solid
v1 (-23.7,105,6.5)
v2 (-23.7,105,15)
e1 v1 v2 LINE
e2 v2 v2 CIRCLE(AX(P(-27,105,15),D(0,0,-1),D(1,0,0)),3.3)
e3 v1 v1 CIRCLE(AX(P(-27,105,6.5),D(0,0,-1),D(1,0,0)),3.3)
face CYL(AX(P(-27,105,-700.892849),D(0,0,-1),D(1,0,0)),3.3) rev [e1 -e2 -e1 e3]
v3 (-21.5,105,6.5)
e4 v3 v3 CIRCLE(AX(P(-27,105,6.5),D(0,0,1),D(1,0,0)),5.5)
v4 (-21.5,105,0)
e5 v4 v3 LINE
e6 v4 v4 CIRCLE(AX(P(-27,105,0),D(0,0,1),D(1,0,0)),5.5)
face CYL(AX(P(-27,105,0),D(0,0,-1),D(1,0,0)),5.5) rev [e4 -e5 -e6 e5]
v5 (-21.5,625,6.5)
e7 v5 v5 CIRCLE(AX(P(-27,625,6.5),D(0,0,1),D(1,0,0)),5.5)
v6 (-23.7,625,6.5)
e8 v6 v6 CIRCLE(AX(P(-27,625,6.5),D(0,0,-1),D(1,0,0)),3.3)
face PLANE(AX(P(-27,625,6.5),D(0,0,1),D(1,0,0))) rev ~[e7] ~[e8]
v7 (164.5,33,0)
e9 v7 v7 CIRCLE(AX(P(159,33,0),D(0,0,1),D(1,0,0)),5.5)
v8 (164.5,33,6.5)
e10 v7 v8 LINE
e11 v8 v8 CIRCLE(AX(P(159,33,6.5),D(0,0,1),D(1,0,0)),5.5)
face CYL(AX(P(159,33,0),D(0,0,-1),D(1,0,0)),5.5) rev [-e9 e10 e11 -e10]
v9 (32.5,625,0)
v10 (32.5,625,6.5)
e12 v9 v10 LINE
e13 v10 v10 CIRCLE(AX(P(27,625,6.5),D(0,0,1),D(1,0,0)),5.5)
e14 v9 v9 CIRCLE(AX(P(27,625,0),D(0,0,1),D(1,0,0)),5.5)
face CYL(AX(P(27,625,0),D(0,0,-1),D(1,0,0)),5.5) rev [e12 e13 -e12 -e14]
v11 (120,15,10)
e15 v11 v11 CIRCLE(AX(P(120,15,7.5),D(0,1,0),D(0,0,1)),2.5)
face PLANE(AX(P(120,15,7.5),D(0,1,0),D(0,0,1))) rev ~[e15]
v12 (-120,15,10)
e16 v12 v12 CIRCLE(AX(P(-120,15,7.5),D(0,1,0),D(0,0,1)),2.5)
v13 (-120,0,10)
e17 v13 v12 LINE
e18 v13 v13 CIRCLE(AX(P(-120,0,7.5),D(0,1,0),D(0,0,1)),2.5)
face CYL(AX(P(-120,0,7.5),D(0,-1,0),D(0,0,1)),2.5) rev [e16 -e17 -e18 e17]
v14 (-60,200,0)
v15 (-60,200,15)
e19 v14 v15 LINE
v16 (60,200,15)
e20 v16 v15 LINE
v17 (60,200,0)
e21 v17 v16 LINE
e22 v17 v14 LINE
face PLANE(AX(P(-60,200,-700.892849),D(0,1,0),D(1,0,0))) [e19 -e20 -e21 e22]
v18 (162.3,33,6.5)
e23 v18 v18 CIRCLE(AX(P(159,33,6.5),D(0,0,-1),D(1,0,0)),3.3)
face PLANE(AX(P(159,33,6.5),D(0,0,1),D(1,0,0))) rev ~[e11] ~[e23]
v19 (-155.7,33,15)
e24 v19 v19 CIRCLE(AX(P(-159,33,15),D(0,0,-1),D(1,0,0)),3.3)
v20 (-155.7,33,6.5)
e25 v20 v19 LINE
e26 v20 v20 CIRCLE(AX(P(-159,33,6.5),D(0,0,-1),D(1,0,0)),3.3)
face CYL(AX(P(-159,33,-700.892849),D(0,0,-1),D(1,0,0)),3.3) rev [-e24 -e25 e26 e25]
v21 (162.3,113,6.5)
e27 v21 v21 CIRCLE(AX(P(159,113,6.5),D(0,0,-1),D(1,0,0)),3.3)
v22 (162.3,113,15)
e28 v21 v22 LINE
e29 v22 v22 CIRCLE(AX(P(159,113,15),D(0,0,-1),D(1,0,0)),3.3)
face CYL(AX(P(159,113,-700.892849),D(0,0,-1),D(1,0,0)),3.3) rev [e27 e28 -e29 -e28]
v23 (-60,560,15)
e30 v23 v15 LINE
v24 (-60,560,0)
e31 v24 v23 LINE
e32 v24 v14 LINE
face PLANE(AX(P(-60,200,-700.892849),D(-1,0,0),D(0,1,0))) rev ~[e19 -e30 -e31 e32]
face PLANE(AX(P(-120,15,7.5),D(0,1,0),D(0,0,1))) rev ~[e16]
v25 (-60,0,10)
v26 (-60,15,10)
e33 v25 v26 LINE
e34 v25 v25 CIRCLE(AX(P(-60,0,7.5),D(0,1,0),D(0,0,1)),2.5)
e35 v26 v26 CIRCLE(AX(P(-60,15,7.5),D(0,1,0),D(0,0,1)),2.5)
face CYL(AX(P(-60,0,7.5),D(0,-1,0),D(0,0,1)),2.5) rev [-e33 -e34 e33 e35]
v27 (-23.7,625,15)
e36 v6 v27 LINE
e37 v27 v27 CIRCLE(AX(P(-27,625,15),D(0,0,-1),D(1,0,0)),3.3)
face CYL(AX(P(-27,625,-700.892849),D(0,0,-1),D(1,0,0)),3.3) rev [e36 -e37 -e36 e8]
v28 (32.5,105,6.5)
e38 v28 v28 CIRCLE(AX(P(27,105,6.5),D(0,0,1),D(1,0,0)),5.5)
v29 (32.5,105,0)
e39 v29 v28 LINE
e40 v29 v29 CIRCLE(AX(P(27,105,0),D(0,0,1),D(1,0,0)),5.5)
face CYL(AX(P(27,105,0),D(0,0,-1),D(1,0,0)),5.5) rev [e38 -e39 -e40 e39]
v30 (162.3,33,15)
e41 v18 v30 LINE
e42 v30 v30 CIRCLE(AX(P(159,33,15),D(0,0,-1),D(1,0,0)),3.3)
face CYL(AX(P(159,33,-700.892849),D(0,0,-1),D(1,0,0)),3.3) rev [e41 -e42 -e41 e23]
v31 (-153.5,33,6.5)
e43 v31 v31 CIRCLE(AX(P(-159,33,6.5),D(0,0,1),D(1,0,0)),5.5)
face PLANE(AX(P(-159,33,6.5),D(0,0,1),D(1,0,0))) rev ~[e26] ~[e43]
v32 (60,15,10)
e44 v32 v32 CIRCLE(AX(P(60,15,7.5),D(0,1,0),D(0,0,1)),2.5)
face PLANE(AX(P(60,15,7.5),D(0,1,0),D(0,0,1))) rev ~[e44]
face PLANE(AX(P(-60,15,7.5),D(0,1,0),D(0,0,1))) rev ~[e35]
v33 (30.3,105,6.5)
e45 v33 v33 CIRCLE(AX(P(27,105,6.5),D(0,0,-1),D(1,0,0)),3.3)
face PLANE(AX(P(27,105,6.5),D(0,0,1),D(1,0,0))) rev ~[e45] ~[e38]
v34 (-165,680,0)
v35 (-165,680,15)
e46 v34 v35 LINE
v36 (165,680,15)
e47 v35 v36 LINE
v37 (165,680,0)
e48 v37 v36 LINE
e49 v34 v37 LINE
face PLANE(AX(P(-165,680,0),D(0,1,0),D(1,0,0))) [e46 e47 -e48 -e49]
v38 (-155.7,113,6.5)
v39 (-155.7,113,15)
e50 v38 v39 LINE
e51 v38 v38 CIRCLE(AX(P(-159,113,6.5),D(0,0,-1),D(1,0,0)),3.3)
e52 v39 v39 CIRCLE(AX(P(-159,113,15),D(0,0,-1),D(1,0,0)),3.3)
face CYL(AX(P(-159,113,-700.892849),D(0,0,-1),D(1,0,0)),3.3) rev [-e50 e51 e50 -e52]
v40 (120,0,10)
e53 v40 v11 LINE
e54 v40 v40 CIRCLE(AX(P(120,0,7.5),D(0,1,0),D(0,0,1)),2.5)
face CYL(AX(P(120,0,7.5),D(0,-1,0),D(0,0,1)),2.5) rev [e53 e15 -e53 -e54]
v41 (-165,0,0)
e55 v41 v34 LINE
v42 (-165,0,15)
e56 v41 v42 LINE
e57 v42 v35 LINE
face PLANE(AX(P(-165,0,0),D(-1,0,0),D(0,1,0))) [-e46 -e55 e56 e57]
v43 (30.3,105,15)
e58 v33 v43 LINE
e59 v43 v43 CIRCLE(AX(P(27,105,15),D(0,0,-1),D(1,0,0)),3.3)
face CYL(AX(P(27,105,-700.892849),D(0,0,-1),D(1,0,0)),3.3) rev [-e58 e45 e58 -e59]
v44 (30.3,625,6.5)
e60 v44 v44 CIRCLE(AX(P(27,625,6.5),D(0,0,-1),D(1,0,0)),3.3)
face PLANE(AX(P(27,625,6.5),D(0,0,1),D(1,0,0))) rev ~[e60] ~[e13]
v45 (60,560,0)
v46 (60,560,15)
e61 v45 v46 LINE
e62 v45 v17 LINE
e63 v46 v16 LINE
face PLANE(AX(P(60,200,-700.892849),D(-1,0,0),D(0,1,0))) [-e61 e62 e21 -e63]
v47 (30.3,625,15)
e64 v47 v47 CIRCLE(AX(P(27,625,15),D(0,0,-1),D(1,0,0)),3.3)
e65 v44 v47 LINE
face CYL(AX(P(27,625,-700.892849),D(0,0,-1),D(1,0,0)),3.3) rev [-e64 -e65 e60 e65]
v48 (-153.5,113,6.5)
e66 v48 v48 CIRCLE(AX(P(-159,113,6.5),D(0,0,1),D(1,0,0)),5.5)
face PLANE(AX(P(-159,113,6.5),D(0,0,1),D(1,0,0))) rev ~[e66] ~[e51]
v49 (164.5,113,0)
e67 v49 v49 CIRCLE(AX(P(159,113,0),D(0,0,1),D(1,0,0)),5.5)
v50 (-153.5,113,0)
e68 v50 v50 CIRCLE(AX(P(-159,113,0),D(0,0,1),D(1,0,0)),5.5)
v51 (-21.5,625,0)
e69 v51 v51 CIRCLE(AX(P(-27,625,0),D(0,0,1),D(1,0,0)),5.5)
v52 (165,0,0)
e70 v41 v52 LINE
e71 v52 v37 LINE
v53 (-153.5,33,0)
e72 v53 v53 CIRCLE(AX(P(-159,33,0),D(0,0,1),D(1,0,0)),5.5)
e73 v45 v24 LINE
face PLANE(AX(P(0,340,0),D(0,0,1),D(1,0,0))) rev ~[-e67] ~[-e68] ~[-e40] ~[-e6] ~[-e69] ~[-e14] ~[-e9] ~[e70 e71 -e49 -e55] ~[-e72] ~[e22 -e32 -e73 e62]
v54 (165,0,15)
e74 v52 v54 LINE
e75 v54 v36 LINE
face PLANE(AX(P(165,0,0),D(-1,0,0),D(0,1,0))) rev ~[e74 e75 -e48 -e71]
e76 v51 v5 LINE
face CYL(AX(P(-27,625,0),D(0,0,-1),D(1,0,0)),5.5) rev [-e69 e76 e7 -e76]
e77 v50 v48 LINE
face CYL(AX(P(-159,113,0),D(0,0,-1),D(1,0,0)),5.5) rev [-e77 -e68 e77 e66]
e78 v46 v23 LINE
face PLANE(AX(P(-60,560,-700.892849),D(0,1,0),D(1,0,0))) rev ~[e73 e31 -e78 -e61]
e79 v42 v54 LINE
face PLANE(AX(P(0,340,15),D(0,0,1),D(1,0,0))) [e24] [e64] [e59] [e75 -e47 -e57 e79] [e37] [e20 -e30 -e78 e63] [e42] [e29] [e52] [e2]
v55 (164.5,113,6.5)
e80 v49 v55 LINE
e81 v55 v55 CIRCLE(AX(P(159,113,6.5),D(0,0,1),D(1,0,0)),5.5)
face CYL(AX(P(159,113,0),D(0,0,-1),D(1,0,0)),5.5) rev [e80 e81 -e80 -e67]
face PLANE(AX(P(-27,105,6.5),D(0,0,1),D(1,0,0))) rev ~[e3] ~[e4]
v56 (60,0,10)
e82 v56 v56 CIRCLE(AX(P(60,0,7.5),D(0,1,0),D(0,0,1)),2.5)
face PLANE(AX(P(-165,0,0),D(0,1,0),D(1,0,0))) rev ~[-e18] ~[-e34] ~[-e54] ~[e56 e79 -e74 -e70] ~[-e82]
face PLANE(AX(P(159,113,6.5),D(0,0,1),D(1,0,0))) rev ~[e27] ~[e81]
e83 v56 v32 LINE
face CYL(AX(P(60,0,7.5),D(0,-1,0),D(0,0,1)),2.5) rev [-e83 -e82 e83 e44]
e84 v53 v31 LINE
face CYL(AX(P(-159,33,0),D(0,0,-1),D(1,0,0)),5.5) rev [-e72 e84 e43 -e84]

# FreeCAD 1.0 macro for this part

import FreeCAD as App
import Part
import Sketcher
from FreeCAD import Vector


def add_polygon(sketch, points):
    """Adds a closed chain of lines whose ends are joined by coincident constraints."""
    first, n = sketch.GeometryCount, len(points)
    for a, b in zip(points, points[1:] + points[:1]):
        sketch.addGeometry(Part.LineSegment(App.Vector(*a, 0), App.Vector(*b, 0)), False)
    for i in range(n):
        sketch.addConstraint(Sketcher.Constraint("Coincident", first + i, 2, first + (i + 1) % n, 1))

doc = App.newDocument("Part")
params = doc.addObject("Spreadsheet::Sheet", "Params")
for row, (alias, value) in enumerate([
    ("sketch1_width", "330 mm"),
    ("sketch1_height", "680 mm"),
    ("pad1_length", "15 mm"),
    ("sketch2_diameter", "6.6 mm"),
    ("sketch3_diameter", "11 mm"),
    ("pocket2_length", "6.5 mm"),
    ("sketch4_diameter", "6.6 mm"),
    ("sketch5_diameter", "11 mm"),
    ("pocket4_length", "6.5 mm"),
    ("sketch6_diameter", "5 mm"),
    ("pocket5_length", "15 mm"),
    ("sketch7_width", "120 mm"),
    ("sketch7_height", "360 mm"),
], start=1):
    params.set(f"A{row}", alias)
    params.set(f"B{row}", "=" + value)
    params.setAlias(f"B{row}", alias)

body = doc.addObject("PartDesign::Body", "Body")

# Sketch on XY plane
sketch1 = body.newObject("Sketcher::SketchObject", "Sketch")
sketch1.AttachmentSupport = (doc.getObject("XY_Plane"), [""])
sketch1.MapMode = "FlatFace"
add_polygon(sketch1, [(-165, 680), (-165, 0), (165, 0), (165, 680)])  # lines 0-3
sketch1.addConstraint([
    Sketcher.Constraint("Vertical", 0),
    Sketcher.Constraint("Horizontal", 1),
    Sketcher.Constraint("Vertical", 2),
    Sketcher.Constraint("Horizontal", 3),
    Sketcher.Constraint("Symmetric", 0, 2, 1, 2, -1, 1),
    Sketcher.Constraint("DistanceX", 1, 1, 1, 2, 330.0),
    Sketcher.Constraint("DistanceY", 0, 2, 0, 1, 680.0),
])
sketch1.setExpression("Constraints[9]", "Params.sketch1_width")
sketch1.setExpression("Constraints[10]", "Params.sketch1_height")
pad1 = body.newObject("PartDesign::Pad", "Pad")
pad1.Profile = sketch1
pad1.setExpression("Length", "Params.pad1_length")

# Sketch on XY plane
sketch2 = body.newObject("Sketcher::SketchObject", "Sketch001")
sketch2.AttachmentSupport = (doc.getObject("XY_Plane"), [""])
sketch2.MapMode = "FlatFace"
sketch2.addGeometry([
    Part.Circle(Vector(-27, 105, 0), Vector(0, 0, 1), 3.3),
    Part.Circle(Vector(-27, 625, 0), Vector(0, 0, 1), 3.3),
    Part.Circle(Vector(27, 105, 0), Vector(0, 0, 1), 3.3),
    Part.Circle(Vector(27, 625, 0), Vector(0, 0, 1), 3.3),
], False)
sketch2.addConstraint([
    Sketcher.Constraint("Equal", 0, 1),
    Sketcher.Constraint("Equal", 1, 2),
    Sketcher.Constraint("Equal", 2, 3),
    Sketcher.Constraint("Symmetric", 0, 3, 2, 3, -2),
    Sketcher.Constraint("Symmetric", 1, 3, 3, 3, -2),
    Sketcher.Constraint("Vertical", 0, 3, 1, 3),
    Sketcher.Constraint("Diameter", 0, 6.6),
    Sketcher.Constraint("DistanceX", 0, 3, -1, 1, 27.0),
    Sketcher.Constraint("DistanceY", -1, 1, 0, 3, 105.0),
    Sketcher.Constraint("DistanceY", -1, 1, 1, 3, 625.0),
])
sketch2.setExpression("Constraints[6]", "Params.sketch2_diameter")
pocket1 = body.newObject("PartDesign::Pocket", "Pocket")
pocket1.Profile = sketch2
pocket1.Type = "ThroughAll"
pocket1.Midplane = True

# Sketch on XY plane
sketch3 = body.newObject("Sketcher::SketchObject", "Sketch002")
sketch3.AttachmentSupport = (doc.getObject("XY_Plane"), [""])
sketch3.MapMode = "FlatFace"
sketch3.addGeometry([
    Part.Circle(Vector(-27, 105, 0), Vector(0, 0, 1), 5.5),
    Part.Circle(Vector(-27, 625, 0), Vector(0, 0, 1), 5.5),
    Part.Circle(Vector(27, 105, 0), Vector(0, 0, 1), 5.5),
    Part.Circle(Vector(27, 625, 0), Vector(0, 0, 1), 5.5),
], False)
sketch3.addConstraint([
    Sketcher.Constraint("Equal", 0, 1),
    Sketcher.Constraint("Equal", 1, 2),
    Sketcher.Constraint("Equal", 2, 3),
    Sketcher.Constraint("Symmetric", 0, 3, 2, 3, -2),
    Sketcher.Constraint("Symmetric", 1, 3, 3, 3, -2),
    Sketcher.Constraint("Vertical", 0, 3, 1, 3),
    Sketcher.Constraint("Diameter", 0, 11.0),
    Sketcher.Constraint("DistanceX", 0, 3, -1, 1, 27.0),
    Sketcher.Constraint("DistanceY", -1, 1, 0, 3, 105.0),
    Sketcher.Constraint("DistanceY", -1, 1, 1, 3, 625.0),
])
sketch3.setExpression("Constraints[6]", "Params.sketch3_diameter")
pocket2 = body.newObject("PartDesign::Pocket", "Pocket001")
pocket2.Profile = sketch3
pocket2.setExpression("Length", "Params.pocket2_length")
pocket2.Reversed = True

# Sketch on XY plane
sketch4 = body.newObject("Sketcher::SketchObject", "Sketch003")
sketch4.AttachmentSupport = (doc.getObject("XY_Plane"), [""])
sketch4.MapMode = "FlatFace"
sketch4.addGeometry([
    Part.Circle(Vector(-159, 33, 0), Vector(0, 0, 1), 3.3),
    Part.Circle(Vector(-159, 113, 0), Vector(0, 0, 1), 3.3),
    Part.Circle(Vector(159, 33, 0), Vector(0, 0, 1), 3.3),
    Part.Circle(Vector(159, 113, 0), Vector(0, 0, 1), 3.3),
], False)
sketch4.addConstraint([
    Sketcher.Constraint("Equal", 0, 1),
    Sketcher.Constraint("Equal", 1, 2),
    Sketcher.Constraint("Equal", 2, 3),
    Sketcher.Constraint("Symmetric", 0, 3, 2, 3, -2),
    Sketcher.Constraint("Symmetric", 1, 3, 3, 3, -2),
    Sketcher.Constraint("Vertical", 0, 3, 1, 3),
    Sketcher.Constraint("Diameter", 0, 6.6),
    Sketcher.Constraint("DistanceX", 0, 3, -1, 1, 159.0),
    Sketcher.Constraint("DistanceY", -1, 1, 0, 3, 33.0),
    Sketcher.Constraint("DistanceY", -1, 1, 1, 3, 113.0),
])
sketch4.setExpression("Constraints[6]", "Params.sketch4_diameter")
pocket3 = body.newObject("PartDesign::Pocket", "Pocket002")
pocket3.Profile = sketch4
pocket3.Type = "ThroughAll"
pocket3.Midplane = True

# Sketch on XY plane
sketch5 = body.newObject("Sketcher::SketchObject", "Sketch004")
sketch5.AttachmentSupport = (doc.getObject("XY_Plane"), [""])
sketch5.MapMode = "FlatFace"
sketch5.addGeometry([
    Part.Circle(Vector(-159, 33, 0), Vector(0, 0, 1), 5.5),
    Part.Circle(Vector(-159, 113, 0), Vector(0, 0, 1), 5.5),
    Part.Circle(Vector(159, 33, 0), Vector(0, 0, 1), 5.5),
    Part.Circle(Vector(159, 113, 0), Vector(0, 0, 1), 5.5),
], False)
sketch5.addConstraint([
    Sketcher.Constraint("Equal", 0, 1),
    Sketcher.Constraint("Equal", 1, 2),
    Sketcher.Constraint("Equal", 2, 3),
    Sketcher.Constraint("Symmetric", 0, 3, 2, 3, -2),
    Sketcher.Constraint("Symmetric", 1, 3, 3, 3, -2),
    Sketcher.Constraint("Vertical", 0, 3, 1, 3),
    Sketcher.Constraint("Diameter", 0, 11.0),
    Sketcher.Constraint("DistanceX", 0, 3, -1, 1, 159.0),
    Sketcher.Constraint("DistanceY", -1, 1, 0, 3, 33.0),
    Sketcher.Constraint("DistanceY", -1, 1, 1, 3, 113.0),
])
sketch5.setExpression("Constraints[6]", "Params.sketch5_diameter")
pocket4 = body.newObject("PartDesign::Pocket", "Pocket003")
pocket4.Profile = sketch5
pocket4.setExpression("Length", "Params.pocket4_length")
pocket4.Reversed = True

# Sketch on XZ plane
sketch6 = body.newObject("Sketcher::SketchObject", "Sketch005")
sketch6.AttachmentSupport = (doc.getObject("XZ_Plane"), [""])
sketch6.MapMode = "FlatFace"
sketch6.addGeometry([
    Part.Circle(Vector(-120, 7.5, 0), Vector(0, 0, 1), 2.5),
    Part.Circle(Vector(-60, 7.5, 0), Vector(0, 0, 1), 2.5),
    Part.Circle(Vector(60, 7.5, 0), Vector(0, 0, 1), 2.5),
    Part.Circle(Vector(120, 7.5, 0), Vector(0, 0, 1), 2.5),
], False)
sketch6.addConstraint([
    Sketcher.Constraint("Equal", 0, 1),
    Sketcher.Constraint("Equal", 1, 2),
    Sketcher.Constraint("Equal", 2, 3),
    Sketcher.Constraint("Symmetric", 1, 3, 2, 3, -2),
    Sketcher.Constraint("Symmetric", 0, 3, 3, 3, -2),
    Sketcher.Constraint("Horizontal", 0, 3, 1, 3),
    Sketcher.Constraint("Diameter", 0, 5.0),
    Sketcher.Constraint("DistanceX", 0, 3, -1, 1, 120.0),
    Sketcher.Constraint("DistanceX", 1, 3, -1, 1, 60.0),
    Sketcher.Constraint("DistanceY", -1, 1, 0, 3, 7.5),
])
sketch6.setExpression("Constraints[6]", "Params.sketch6_diameter")
pocket5 = body.newObject("PartDesign::Pocket", "Pocket004")
pocket5.Profile = sketch6
pocket5.setExpression("Length", "Params.pocket5_length")

# Sketch on XY plane
sketch7 = body.newObject("Sketcher::SketchObject", "Sketch006")
sketch7.AttachmentSupport = (doc.getObject("XY_Plane"), [""])
sketch7.MapMode = "FlatFace"
add_polygon(sketch7, [(-60, 560), (-60, 200), (60, 200), (60, 560)])  # lines 0-3
sketch7.addConstraint([
    Sketcher.Constraint("Vertical", 0),
    Sketcher.Constraint("Horizontal", 1),
    Sketcher.Constraint("Vertical", 2),
    Sketcher.Constraint("Horizontal", 3),
    Sketcher.Constraint("DistanceX", 1, 1, 1, 2, 120.0),
    Sketcher.Constraint("DistanceY", 0, 2, 0, 1, 360.0),
    Sketcher.Constraint("DistanceX", 0, 2, -1, 1, 60.0),
    Sketcher.Constraint("DistanceY", -1, 1, 0, 2, 200.0),
])
sketch7.setExpression("Constraints[8]", "Params.sketch7_width")
sketch7.setExpression("Constraints[9]", "Params.sketch7_height")
pocket6 = body.newObject("PartDesign::Pocket", "Pocket005")
pocket6.Profile = sketch7
pocket6.Type = "ThroughAll"
pocket6.Midplane = True

doc.recompute()
